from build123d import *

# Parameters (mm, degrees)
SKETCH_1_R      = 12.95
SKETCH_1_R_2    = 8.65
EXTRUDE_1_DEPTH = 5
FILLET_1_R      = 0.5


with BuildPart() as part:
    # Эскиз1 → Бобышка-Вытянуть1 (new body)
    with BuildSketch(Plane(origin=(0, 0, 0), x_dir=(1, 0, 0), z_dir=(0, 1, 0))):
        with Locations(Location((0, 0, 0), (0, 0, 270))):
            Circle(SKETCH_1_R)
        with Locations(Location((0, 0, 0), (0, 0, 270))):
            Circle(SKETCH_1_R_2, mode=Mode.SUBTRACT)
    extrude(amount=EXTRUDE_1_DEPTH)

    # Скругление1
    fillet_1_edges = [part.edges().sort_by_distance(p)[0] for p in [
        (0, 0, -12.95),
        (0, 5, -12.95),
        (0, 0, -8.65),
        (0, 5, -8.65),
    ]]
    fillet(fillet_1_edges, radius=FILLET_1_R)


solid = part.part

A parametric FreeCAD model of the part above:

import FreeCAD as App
import Part
import Sketcher


def edges_at(feature, points):
    """Names of the edges that pass closest to the given points."""
    edges = feature.Shape.Edges
    near = lambda p: min(range(len(edges)), key=lambda i: edges[i].distToShape(Part.Vertex(*p))[0])
    return sorted({f"Edge{near(p) + 1}" for p in points})

doc = App.newDocument("Part")
body = doc.addObject("PartDesign::Body", "Body")

# Sketch on XZ plane
sketch1 = body.newObject("Sketcher::SketchObject", "Sketch")
sketch1.AttachmentSupport = (doc.getObject("XZ_Plane"), [""])
sketch1.MapMode = "FlatFace"
sketch1.addGeometry([
    Part.Circle(App.Vector(0, 0, 0), App.Vector(0, 0, 1), 13),
    Part.Circle(App.Vector(0, 0, 0), App.Vector(0, 0, 1), 9),
], False)
sketch1.addConstraint([
    Sketcher.Constraint("Coincident", 0, 3, -1, 1),
    Sketcher.Constraint("Coincident", 1, 3, -1, 1),
    Sketcher.Constraint("Diameter", 0, 25.9),
    Sketcher.Constraint("Diameter", 1, 17.3),
])
pad1 = body.newObject("PartDesign::Pad", "Pad")
pad1.Profile = sketch1
pad1.Length = 5
pad1.Reversed = True
doc.recompute()

fillet = body.newObject("PartDesign::Fillet", "Fillet")
fillet.Base = (pad1, edges_at(pad1, [
    (0, 0, -12.95),
    (0, 5, -12.95),
    (0, 0, -8.65),
    (0, 5, -8.65),
]))
fillet.Radius = 0.5

doc.recompute()
